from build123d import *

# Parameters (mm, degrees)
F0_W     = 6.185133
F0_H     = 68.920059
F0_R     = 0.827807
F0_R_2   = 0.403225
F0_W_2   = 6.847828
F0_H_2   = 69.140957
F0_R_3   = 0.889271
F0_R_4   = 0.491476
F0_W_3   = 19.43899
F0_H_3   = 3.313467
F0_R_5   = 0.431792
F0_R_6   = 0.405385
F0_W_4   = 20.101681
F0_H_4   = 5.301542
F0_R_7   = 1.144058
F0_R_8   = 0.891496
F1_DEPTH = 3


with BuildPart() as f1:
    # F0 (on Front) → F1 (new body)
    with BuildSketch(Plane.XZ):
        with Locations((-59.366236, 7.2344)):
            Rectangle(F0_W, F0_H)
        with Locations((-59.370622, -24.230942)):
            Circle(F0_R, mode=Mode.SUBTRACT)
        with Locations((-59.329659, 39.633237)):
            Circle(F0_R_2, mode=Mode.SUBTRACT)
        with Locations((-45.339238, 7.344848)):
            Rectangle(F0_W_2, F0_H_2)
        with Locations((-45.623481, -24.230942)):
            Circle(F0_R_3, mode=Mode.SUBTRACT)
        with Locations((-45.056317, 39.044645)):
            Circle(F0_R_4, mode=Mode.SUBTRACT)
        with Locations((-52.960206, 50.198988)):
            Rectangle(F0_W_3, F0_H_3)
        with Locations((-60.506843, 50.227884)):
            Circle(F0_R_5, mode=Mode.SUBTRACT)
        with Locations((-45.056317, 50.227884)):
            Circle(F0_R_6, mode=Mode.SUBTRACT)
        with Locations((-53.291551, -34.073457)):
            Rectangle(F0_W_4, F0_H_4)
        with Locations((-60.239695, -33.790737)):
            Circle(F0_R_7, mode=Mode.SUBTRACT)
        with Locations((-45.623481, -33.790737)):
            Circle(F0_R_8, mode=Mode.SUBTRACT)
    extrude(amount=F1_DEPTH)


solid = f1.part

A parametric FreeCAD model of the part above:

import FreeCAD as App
import Part
import Sketcher
from FreeCAD import Vector
Q = App.Units.Quantity


def add_polygon(sketch, points):
    """Adds a closed chain of lines whose ends are joined by coincident constraints."""
    first, n = sketch.GeometryCount, len(points)
    for a, b in zip(points, points[1:] + points[:1]):
        sketch.addGeometry(Part.LineSegment(App.Vector(*a, 0), App.Vector(*b, 0)), False)
    for i in range(n):
        sketch.addConstraint(Sketcher.Constraint("Coincident", first + i, 2, first + (i + 1) % n, 1))

doc = App.newDocument("Part")
params = doc.addObject("Spreadsheet::Sheet", "Params")
for row, (alias, value) in enumerate([
    ("pad1_length", "3 mm"),
], start=1):
    params.set(f"A{row}", alias)
    params.set(f"B{row}", "=" + value)
    params.setAlias(f"B{row}", alias)

body = doc.addObject("PartDesign::Body", "Body")
body.AllowCompound = True

sketch1 = doc.addObject("Sketcher::SketchObject", "Sketch")
body.addObject(sketch1)
sketch1.AttachmentSupport = (doc.XZ_Plane, [""])
sketch1.MapMode = "FlatFace"
add_polygon(sketch1, [(-62.46, 41.69), (-62.46, -27.23), (-56.27, -27.23), (-56.27, 41.69)])
sketch1.addGeometry(Part.Circle(Vector(-59.37, -24.23, 0), Vector(0, 0, 1), 0.83), False)
sketch1.addGeometry(Part.Circle(Vector(-59.33, 39.63, 0), Vector(0, 0, 1), 0.4), False)
add_polygon(sketch1, [(-48.76, 41.92), (-48.76, -27.23), (-41.92, -27.23), (-41.92, 41.92)])
sketch1.addGeometry(Part.Circle(Vector(-45.62, -24.23, 0), Vector(0, 0, 1), 0.89), False)
sketch1.addGeometry(Part.Circle(Vector(-45.06, 39.04, 0), Vector(0, 0, 1), 0.49), False)
add_polygon(sketch1, [(-62.68, 51.86), (-62.68, 48.54), (-43.24, 48.54), (-43.24, 51.86)])
sketch1.addGeometry(Part.Circle(Vector(-60.51, 50.23, 0), Vector(0, 0, 1), 0.43), False)
sketch1.addGeometry(Part.Circle(Vector(-45.06, 50.23, 0), Vector(0, 0, 1), 0.41), False)
add_polygon(sketch1, [(-63.34, -31.42), (-63.34, -36.72), (-43.24, -36.72), (-43.24, -31.42)])
sketch1.addGeometry(Part.Circle(Vector(-60.24, -33.79, 0), Vector(0, 0, 1), 1.14), False)
sketch1.addGeometry(Part.Circle(Vector(-45.62, -33.79, 0), Vector(0, 0, 1), 0.89), False)
sketch1.addConstraint(Sketcher.Constraint("Vertical", 0))
sketch1.addConstraint(Sketcher.Constraint("Horizontal", 1))
sketch1.addConstraint(Sketcher.Constraint("Vertical", 2))
sketch1.addConstraint(Sketcher.Constraint("Horizontal", 3))
sketch1.addConstraint(Sketcher.Constraint("Vertical", 6))
sketch1.addConstraint(Sketcher.Constraint("Horizontal", 7))
sketch1.addConstraint(Sketcher.Constraint("Vertical", 8))
sketch1.addConstraint(Sketcher.Constraint("Horizontal", 9))
sketch1.addConstraint(Sketcher.Constraint("Vertical", 12))
sketch1.addConstraint(Sketcher.Constraint("Horizontal", 13))
sketch1.addConstraint(Sketcher.Constraint("Vertical", 14))
sketch1.addConstraint(Sketcher.Constraint("Horizontal", 15))
sketch1.addConstraint(Sketcher.Constraint("Vertical", 18))
sketch1.addConstraint(Sketcher.Constraint("Horizontal", 19))
sketch1.addConstraint(Sketcher.Constraint("Vertical", 20))
sketch1.addConstraint(Sketcher.Constraint("Horizontal", 21))
sketch1.addConstraint(Sketcher.Constraint("Horizontal", 4, 3, 10, 3))
sketch1.addConstraint(Sketcher.Constraint("Horizontal", 16, 3, 17, 3))
sketch1.addConstraint(Sketcher.Constraint("Horizontal", 22, 3, 23, 3))
sketch1.addConstraint(Sketcher.Constraint("Horizontal", 1, 2, 6, 2))
sketch1.addConstraint(Sketcher.Constraint("Vertical", 11, 3, 17, 3))
sketch1.addConstraint(Sketcher.Constraint("Vertical", 10, 3, 23, 3))
sketch1.addConstraint(Sketcher.Constraint("Vertical", 14, 2, 19, 2))
sketch1.addConstraint(Sketcher.Constraint("Diameter", 5, Q("0.80645 mm")))
sketch1.addConstraint(Sketcher.Constraint("Diameter", 17, Q("0.81077 mm")))
sketch1.addConstraint(Sketcher.Constraint("Diameter", 23, Q("1.782992 mm")))
sketch1.addConstraint(Sketcher.Constraint("Diameter", 4, Q("1.655614 mm")))
sketch1.addConstraint(Sketcher.Constraint("Diameter", 10, Q("1.778542 mm")))
sketch1.addConstraint(Sketcher.Constraint("Diameter", 11, Q("0.982952 mm")))
sketch1.addConstraint(Sketcher.Constraint("Diameter", 16, Q("0.863584 mm")))
sketch1.addConstraint(Sketcher.Constraint("Diameter", 22, Q("2.288116 mm")))
sketch1.addConstraint(Sketcher.Constraint("DistanceX", 13, 1, 13, 2, Q("19.43899 mm")))
sketch1.addConstraint(Sketcher.Constraint("DistanceX", 19, 1, 19, 2, Q("20.101681 mm")))
sketch1.addConstraint(Sketcher.Constraint("DistanceY", 0, 2, 0, 1, Q("68.920059 mm")))
sketch1.addConstraint(Sketcher.Constraint("DistanceY", 18, 2, 18, 1, Q("5.301542 mm")))
sketch1.addConstraint(Sketcher.Constraint("DistanceX", 12, 2, -1, 1, Q("62.679701 mm")))
sketch1.addConstraint(Sketcher.Constraint("DistanceX", 12, 2, 3, 2, Q("0.220899 mm")))
sketch1.addConstraint(Sketcher.Constraint("DistanceY", 18, 2, 0, 2, Q("9.498598 mm")))
sketch1.addConstraint(Sketcher.Constraint("DistanceX", 1, 1, 1, 2, Q("6.185133 mm")))
sketch1.addConstraint(Sketcher.Constraint("DistanceX", 7, 1, 7, 2, Q("6.847828 mm")))
sketch1.addConstraint(Sketcher.Constraint("DistanceY", 6, 2, 6, 1, Q("69.140957 mm")))
sketch1.addConstraint(Sketcher.Constraint("DistanceY", 12, 2, 12, 1, Q("3.313467 mm")))
sketch1.addConstraint(Sketcher.Constraint("DistanceX", 4, 3, -1, 1, Q("59.370622 mm")))
sketch1.addConstraint(Sketcher.Constraint("DistanceY", 4, 3, -1, 1, Q("24.230942 mm")))
sketch1.addConstraint(Sketcher.Constraint("DistanceX", 5, 3, -1, 1, Q("59.329659 mm")))
sketch1.addConstraint(Sketcher.Constraint("DistanceX", 10, 3, -1, 1, Q("45.623481 mm")))
sketch1.addConstraint(Sketcher.Constraint("DistanceY", 0, 2, -1, 1, Q("27.22563 mm")))
sketch1.addConstraint(Sketcher.Constraint("DistanceX", 6, 2, -1, 1, Q("48.763152 mm")))
sketch1.addConstraint(Sketcher.Constraint("DistanceY", -1, 1, 14, 2, Q("51.855722 mm")))
sketch1.addConstraint(Sketcher.Constraint("DistanceY", 4, 3, 5, 3, Q("63.864179 mm")))
sketch1.addConstraint(Sketcher.Constraint("DistanceY", 11, 3, 5, 3, Q("0.588592 mm")))
sketch1.addConstraint(Sketcher.Constraint("DistanceY", 11, 3, 16, 3, Q("11.183239 mm")))
sketch1.addConstraint(Sketcher.Constraint("DistanceX", 16, 3, 4, 3, Q("1.136221 mm")))
sketch1.addConstraint(Sketcher.Constraint("DistanceX", 16, 3, 22, 3, Q("0.267148 mm")))
sketch1.addConstraint(Sketcher.Constraint("DistanceY", 22, 3, 16, 3, Q("84.018621 mm")))
sketch1.addConstraint(Sketcher.Constraint("DistanceX", 11, 3, -1, 1, Q("45.056317 mm")))
pad1 = doc.addObject("PartDesign::Pad", "Pad")
body.addObject(pad1)
pad1.Profile = sketch1
pad1.setExpression("Length", "Params.pad1_length")

doc.recompute()
